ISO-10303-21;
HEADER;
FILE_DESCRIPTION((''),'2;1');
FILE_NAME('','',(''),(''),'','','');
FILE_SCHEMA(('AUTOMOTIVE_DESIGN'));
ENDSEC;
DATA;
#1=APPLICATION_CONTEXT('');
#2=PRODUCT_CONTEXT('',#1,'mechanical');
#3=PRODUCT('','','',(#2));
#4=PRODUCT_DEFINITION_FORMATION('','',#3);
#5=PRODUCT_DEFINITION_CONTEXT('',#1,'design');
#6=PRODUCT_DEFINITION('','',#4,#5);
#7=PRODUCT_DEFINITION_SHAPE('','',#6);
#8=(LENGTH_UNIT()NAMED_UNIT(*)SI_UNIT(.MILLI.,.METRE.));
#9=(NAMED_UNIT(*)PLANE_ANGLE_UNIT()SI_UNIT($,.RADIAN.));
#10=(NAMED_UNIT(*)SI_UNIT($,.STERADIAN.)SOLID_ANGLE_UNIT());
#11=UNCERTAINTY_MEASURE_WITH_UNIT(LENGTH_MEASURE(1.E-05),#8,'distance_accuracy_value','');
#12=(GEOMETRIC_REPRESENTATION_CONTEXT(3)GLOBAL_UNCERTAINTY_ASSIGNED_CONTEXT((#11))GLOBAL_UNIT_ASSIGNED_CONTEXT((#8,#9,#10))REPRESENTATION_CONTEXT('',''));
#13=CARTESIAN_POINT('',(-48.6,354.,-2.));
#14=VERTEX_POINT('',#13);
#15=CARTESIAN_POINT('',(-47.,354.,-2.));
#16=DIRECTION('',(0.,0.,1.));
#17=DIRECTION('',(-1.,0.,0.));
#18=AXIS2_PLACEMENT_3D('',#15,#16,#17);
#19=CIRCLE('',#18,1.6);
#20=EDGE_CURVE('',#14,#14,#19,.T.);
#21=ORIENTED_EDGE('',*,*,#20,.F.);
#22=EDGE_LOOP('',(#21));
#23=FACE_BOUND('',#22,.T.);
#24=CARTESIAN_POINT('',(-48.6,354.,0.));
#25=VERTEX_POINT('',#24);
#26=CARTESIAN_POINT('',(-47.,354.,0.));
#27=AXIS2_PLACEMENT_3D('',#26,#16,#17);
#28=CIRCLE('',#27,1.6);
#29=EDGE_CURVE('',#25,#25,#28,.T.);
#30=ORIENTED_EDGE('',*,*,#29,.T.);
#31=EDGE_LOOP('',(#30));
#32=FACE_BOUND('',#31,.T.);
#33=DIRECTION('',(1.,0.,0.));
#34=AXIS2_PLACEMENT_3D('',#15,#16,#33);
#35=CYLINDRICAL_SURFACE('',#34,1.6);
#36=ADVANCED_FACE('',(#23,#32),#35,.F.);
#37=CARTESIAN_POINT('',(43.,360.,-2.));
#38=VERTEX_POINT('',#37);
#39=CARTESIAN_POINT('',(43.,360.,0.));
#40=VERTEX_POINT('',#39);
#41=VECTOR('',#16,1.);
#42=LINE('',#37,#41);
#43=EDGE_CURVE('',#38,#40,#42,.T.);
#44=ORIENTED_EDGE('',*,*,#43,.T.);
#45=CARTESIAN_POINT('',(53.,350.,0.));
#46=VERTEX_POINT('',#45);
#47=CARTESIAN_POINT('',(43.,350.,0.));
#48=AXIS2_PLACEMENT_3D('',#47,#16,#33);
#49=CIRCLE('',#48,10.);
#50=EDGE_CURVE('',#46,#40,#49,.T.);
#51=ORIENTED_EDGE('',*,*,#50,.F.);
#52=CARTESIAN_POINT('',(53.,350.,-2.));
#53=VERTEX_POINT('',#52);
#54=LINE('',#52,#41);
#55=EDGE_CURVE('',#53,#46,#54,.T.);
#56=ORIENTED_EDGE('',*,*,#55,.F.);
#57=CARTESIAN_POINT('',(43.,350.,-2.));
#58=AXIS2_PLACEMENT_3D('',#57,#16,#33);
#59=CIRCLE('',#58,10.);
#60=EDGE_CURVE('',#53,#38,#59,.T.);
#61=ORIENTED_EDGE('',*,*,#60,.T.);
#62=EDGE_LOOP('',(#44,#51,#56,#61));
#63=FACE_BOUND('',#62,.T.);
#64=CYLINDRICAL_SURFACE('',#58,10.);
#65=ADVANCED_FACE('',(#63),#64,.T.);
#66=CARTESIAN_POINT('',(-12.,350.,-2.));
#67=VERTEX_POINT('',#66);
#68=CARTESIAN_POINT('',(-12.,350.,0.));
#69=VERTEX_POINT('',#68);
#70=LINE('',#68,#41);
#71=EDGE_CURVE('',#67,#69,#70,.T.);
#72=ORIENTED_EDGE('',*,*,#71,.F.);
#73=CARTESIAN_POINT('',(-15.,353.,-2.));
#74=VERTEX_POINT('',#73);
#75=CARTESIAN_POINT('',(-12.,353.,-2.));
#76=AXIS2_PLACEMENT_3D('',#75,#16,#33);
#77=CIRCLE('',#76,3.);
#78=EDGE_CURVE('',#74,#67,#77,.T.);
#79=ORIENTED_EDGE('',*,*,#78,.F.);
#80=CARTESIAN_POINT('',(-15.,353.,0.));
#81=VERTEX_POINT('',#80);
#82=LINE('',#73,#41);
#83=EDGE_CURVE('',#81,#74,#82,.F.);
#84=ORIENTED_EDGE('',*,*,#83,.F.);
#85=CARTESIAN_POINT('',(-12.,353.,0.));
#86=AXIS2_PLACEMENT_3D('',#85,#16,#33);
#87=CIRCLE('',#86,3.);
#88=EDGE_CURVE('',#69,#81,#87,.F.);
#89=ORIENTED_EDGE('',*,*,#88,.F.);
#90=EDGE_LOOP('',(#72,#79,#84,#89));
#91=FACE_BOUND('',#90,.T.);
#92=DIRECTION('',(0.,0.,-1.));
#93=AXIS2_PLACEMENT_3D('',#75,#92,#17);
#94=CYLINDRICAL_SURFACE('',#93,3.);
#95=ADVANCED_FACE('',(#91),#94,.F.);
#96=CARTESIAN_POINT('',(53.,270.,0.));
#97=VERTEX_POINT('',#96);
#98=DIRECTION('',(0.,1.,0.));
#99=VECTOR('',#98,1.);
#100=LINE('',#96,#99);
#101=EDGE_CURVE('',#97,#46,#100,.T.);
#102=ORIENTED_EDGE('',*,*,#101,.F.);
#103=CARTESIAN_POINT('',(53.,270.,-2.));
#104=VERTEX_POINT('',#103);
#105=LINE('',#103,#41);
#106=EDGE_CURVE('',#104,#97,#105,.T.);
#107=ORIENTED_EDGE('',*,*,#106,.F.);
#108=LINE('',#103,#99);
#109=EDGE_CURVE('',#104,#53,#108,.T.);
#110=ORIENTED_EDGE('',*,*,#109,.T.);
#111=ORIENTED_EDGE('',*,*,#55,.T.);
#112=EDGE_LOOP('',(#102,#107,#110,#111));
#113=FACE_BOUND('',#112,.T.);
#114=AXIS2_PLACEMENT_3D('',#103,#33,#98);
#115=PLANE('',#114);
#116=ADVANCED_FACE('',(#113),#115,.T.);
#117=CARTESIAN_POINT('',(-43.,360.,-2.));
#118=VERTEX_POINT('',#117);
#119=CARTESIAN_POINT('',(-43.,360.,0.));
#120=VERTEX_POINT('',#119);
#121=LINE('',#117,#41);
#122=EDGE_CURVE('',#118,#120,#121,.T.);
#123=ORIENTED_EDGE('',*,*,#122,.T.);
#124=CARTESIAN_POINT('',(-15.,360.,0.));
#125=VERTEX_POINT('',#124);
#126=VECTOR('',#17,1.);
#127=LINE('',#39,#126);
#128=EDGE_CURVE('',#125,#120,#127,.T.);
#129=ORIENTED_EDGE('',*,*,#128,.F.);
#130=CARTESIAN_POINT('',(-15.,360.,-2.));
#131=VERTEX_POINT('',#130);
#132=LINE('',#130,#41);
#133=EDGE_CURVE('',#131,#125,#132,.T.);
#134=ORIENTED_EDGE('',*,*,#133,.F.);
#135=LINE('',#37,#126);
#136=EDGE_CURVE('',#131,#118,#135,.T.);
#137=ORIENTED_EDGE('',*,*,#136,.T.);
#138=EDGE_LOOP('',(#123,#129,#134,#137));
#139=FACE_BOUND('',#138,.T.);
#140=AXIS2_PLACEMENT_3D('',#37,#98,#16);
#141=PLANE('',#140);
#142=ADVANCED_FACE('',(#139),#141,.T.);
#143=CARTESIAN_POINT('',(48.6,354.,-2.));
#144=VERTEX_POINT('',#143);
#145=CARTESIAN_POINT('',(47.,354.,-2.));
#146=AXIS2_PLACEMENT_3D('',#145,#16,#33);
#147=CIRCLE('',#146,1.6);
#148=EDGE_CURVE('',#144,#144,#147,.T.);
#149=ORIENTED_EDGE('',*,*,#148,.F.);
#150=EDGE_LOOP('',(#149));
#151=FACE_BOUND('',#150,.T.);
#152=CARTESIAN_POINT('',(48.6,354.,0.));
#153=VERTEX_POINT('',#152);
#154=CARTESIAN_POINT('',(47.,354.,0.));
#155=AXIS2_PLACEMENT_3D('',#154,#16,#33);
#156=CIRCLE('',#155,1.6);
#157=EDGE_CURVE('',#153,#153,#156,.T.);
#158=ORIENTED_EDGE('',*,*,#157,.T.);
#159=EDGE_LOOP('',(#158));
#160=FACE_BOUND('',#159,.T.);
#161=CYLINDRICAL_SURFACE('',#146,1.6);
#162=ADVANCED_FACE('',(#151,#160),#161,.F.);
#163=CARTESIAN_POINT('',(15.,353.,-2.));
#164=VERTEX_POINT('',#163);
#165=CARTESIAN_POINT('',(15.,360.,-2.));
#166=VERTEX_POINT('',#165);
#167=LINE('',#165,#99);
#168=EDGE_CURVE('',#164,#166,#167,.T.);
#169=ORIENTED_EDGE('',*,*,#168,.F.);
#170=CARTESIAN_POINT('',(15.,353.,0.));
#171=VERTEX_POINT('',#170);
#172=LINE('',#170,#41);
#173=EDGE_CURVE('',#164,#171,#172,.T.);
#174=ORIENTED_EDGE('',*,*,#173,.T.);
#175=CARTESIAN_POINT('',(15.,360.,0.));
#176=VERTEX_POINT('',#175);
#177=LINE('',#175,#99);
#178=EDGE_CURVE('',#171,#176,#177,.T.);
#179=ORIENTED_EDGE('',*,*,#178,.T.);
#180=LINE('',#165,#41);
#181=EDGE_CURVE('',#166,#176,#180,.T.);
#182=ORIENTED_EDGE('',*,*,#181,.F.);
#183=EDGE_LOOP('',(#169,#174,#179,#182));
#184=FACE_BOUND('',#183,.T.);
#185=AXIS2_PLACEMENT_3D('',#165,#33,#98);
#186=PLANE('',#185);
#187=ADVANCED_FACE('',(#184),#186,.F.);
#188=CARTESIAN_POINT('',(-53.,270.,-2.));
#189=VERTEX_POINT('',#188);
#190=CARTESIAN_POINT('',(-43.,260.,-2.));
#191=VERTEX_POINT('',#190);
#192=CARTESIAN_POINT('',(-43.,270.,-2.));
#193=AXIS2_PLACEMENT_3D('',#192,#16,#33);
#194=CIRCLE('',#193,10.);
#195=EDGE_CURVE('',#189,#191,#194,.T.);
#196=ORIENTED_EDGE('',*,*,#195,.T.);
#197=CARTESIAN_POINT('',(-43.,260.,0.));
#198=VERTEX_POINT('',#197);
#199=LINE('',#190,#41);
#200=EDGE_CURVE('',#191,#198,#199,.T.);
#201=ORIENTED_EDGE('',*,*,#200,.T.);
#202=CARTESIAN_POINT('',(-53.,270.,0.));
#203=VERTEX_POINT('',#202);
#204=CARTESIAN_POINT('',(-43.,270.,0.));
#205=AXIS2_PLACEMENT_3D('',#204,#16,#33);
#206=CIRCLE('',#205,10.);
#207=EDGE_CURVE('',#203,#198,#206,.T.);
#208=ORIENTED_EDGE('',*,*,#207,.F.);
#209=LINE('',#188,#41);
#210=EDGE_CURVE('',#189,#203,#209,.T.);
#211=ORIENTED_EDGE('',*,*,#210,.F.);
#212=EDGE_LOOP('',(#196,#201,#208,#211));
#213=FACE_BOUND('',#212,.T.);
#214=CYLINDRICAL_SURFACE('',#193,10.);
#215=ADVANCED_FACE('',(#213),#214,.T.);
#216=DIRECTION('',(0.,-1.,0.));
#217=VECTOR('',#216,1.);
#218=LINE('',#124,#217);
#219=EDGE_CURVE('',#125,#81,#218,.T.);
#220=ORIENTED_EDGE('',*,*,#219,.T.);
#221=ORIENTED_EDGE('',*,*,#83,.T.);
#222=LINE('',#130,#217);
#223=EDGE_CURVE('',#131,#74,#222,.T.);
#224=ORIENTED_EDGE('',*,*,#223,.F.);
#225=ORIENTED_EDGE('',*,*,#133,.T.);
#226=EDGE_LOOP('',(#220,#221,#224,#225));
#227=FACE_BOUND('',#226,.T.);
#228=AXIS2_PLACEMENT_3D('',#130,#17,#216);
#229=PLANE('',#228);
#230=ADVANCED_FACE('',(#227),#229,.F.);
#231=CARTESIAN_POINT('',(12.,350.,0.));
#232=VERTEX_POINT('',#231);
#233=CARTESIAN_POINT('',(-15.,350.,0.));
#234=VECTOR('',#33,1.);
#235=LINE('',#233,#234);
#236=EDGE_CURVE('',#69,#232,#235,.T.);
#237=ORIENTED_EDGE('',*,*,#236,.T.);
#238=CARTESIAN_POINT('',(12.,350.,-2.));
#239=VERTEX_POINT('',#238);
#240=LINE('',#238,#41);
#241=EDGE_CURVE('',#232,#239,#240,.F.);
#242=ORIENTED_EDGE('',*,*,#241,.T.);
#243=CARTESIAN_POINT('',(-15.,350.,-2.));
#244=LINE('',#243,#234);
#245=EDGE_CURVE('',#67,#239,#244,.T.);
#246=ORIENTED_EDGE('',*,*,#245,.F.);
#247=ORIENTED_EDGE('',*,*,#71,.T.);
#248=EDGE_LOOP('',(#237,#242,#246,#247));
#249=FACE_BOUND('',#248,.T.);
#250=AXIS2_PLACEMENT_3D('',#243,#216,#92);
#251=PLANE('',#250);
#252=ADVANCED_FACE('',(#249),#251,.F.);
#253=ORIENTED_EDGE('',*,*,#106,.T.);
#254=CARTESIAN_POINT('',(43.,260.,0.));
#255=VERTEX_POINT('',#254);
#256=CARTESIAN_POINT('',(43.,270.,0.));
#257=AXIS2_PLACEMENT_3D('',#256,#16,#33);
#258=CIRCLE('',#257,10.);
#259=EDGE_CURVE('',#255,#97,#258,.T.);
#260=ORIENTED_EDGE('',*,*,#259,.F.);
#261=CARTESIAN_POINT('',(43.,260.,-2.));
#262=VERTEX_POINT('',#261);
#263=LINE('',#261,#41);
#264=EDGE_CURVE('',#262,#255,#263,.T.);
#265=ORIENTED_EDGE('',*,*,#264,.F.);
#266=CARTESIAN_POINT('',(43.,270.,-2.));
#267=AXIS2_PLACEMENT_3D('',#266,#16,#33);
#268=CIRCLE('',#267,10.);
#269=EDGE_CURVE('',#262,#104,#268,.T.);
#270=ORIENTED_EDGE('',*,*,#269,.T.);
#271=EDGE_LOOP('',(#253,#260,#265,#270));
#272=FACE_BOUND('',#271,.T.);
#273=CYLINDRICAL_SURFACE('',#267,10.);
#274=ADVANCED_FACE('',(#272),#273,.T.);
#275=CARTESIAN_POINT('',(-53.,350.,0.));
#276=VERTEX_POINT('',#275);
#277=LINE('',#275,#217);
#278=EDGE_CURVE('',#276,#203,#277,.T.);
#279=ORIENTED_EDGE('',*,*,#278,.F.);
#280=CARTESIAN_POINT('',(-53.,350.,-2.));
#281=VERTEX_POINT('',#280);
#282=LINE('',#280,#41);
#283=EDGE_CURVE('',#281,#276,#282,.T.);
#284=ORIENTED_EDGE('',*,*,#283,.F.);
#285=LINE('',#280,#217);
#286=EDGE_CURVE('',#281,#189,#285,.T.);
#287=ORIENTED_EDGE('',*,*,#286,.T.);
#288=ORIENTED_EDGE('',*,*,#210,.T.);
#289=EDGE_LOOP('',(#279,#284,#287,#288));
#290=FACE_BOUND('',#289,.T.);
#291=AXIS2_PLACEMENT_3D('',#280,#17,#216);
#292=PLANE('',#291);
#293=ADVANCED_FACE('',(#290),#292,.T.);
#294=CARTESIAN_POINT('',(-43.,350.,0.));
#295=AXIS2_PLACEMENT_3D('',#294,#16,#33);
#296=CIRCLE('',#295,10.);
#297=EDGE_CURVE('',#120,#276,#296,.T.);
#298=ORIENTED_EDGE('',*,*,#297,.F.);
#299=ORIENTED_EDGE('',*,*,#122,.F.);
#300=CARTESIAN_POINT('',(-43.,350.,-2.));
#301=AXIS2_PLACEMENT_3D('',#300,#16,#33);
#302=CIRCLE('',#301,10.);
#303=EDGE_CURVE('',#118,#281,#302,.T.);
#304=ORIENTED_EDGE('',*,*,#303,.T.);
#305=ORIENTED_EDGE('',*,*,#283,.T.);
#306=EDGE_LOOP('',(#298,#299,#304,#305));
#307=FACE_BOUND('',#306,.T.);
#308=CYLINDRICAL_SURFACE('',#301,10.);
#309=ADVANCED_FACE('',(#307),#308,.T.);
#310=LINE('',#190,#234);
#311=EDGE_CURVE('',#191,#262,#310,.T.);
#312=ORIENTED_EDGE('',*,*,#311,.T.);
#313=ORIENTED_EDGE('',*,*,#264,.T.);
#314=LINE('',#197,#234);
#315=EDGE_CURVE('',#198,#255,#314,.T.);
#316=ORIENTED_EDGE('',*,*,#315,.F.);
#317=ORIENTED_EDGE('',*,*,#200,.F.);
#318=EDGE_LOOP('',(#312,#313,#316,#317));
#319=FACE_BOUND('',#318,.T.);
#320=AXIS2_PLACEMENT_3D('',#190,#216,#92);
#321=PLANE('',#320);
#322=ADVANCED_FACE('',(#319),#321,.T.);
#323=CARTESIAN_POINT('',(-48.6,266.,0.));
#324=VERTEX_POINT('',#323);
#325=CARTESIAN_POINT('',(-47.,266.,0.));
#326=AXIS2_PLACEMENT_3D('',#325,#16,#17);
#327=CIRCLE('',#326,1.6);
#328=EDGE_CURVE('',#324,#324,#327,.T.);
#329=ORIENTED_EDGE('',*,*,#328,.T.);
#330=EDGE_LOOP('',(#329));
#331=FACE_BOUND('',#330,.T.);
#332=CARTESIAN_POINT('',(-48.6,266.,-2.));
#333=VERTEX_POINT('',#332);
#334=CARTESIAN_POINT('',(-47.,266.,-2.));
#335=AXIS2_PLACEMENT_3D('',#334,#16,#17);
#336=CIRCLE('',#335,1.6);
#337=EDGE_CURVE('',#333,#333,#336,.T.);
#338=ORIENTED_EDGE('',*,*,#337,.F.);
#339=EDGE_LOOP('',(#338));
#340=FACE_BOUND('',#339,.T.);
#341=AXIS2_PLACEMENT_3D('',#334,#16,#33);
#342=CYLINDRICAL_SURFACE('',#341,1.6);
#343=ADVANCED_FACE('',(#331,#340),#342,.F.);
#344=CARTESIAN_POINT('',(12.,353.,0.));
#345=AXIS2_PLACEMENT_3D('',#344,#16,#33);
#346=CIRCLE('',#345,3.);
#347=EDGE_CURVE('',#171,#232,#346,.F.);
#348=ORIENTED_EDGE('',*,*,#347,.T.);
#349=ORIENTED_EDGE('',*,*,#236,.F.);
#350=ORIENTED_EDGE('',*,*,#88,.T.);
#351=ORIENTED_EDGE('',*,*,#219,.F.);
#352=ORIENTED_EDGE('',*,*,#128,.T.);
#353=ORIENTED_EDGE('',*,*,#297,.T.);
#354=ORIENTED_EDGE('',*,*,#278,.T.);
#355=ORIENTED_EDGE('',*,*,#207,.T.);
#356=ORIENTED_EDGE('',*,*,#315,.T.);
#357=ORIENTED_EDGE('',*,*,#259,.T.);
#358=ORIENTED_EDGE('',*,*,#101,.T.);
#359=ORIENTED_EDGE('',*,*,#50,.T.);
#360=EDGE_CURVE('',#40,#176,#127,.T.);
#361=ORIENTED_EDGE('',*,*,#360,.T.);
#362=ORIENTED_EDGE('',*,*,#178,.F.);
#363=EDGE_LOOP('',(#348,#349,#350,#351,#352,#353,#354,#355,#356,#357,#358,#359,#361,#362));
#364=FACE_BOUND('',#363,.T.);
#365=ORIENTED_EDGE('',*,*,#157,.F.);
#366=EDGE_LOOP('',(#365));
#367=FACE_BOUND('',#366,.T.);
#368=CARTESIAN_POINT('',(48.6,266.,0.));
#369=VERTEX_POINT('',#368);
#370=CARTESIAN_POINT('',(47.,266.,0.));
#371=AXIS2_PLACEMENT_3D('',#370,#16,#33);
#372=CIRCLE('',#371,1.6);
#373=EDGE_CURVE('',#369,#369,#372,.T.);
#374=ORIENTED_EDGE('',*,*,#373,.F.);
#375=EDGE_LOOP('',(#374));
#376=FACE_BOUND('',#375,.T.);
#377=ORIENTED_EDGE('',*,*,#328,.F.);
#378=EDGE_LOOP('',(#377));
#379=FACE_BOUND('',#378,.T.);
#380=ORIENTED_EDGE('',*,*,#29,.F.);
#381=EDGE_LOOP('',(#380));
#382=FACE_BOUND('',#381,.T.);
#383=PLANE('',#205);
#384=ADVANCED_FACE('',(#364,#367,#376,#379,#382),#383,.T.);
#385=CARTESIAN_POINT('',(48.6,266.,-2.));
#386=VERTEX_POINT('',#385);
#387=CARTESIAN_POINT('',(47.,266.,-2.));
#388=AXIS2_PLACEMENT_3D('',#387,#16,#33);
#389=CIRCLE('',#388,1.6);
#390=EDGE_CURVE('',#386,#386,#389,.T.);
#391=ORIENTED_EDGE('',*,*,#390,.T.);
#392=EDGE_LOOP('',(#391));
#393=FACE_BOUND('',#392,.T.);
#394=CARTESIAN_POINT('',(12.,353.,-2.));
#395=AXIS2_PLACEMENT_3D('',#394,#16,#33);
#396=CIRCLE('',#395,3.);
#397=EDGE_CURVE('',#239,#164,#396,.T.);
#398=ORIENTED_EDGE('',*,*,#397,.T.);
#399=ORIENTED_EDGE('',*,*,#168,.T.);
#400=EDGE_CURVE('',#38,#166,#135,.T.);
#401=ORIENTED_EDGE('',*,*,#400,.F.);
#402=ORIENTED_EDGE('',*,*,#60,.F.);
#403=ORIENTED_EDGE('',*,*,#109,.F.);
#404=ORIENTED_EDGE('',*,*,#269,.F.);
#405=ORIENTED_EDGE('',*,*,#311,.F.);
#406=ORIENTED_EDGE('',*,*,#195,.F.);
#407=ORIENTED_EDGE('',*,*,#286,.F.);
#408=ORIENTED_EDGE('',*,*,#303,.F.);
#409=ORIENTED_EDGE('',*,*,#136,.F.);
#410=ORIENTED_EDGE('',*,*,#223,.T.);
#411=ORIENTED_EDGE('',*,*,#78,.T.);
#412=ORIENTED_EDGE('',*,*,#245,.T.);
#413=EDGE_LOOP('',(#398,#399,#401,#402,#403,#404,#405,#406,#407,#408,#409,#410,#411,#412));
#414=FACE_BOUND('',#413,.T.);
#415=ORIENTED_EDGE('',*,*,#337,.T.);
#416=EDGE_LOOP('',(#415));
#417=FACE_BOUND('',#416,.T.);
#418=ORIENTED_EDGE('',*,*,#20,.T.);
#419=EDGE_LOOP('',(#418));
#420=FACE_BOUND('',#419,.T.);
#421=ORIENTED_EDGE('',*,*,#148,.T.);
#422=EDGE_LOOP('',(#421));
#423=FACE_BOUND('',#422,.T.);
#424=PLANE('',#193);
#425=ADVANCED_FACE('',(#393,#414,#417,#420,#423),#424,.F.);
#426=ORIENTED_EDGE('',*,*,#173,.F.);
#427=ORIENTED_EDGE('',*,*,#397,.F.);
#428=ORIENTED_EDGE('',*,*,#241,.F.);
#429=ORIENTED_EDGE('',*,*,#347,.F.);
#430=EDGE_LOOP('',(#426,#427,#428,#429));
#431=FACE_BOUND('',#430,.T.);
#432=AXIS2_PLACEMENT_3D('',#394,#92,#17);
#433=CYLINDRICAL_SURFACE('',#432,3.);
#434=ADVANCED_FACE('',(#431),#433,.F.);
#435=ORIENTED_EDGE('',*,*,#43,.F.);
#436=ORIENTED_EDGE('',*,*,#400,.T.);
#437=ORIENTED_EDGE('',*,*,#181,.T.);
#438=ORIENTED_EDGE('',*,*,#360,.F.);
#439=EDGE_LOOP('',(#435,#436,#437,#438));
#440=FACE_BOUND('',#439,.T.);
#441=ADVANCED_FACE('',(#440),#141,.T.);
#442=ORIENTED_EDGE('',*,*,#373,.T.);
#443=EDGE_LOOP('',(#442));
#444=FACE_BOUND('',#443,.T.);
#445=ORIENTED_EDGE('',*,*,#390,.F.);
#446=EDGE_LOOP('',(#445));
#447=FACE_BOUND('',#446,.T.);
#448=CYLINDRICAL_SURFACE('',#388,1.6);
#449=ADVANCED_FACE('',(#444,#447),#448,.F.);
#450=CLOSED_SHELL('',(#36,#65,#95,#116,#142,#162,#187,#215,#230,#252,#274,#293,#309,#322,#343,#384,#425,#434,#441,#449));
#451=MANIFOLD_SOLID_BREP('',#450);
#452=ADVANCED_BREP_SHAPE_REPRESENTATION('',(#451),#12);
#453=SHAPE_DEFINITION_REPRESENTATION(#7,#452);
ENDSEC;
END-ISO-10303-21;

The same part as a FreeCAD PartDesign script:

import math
import FreeCAD as App
import Part
import Sketcher

V = App.Vector


def edges_at(feature, points):
    """Names of the edges that pass closest to the given points."""
    edges = feature.Shape.Edges
    near = lambda p: min(range(len(edges)), key=lambda i: edges[i].distToShape(Part.Vertex(*p))[0])
    return sorted({f"Edge{near(p) + 1}" for p in points})


def add_polygon(sketch, points):
    """Adds a closed chain of lines whose ends are joined by coincident constraints."""
    first, n = sketch.GeometryCount, len(points)
    for a, b in zip(points, points[1:] + points[:1]):
        sketch.addGeometry(Part.LineSegment(App.Vector(*a, 0), App.Vector(*b, 0)), False)
    for i in range(n):
        sketch.addConstraint(Sketcher.Constraint("Coincident", first + i, 2, first + (i + 1) % n, 1))

doc = App.newDocument("Part")
body = doc.addObject("PartDesign::Body", "Body")

sketch1 = body.newObject("Sketcher::SketchObject", "Sketch")
sketch1.AttachmentSupport = (doc.getObject("XY_Plane"), [""])
sketch1.MapMode = "FlatFace"
sketch1.addGeometry([
    Part.LineSegment(V(-43, 260, 0), V(43, 260, 0)),
    Part.ArcOfCircle(Part.Circle(V(43, 270, 0), V(0, 0, 1), 10), math.radians(-90), math.radians(0)),
    Part.LineSegment(V(53, 270, 0), V(53, 350, 0)),
    Part.ArcOfCircle(Part.Circle(V(43, 350, 0), V(0, 0, 1), 10), math.radians(0), math.radians(90)),
    Part.LineSegment(V(43, 360, 0), V(-43, 360, 0)),
    Part.ArcOfCircle(Part.Circle(V(-43, 350, 0), V(0, 0, 1), 10), math.radians(90), math.radians(180)),
    Part.LineSegment(V(-53, 350, 0), V(-53, 270, 0)),
    Part.ArcOfCircle(Part.Circle(V(-43, 270, 0), V(0, 0, 1), 10), math.radians(180), math.radians(270)),
], False)
sketch1.addConstraint([
    Sketcher.Constraint("Tangent", 0, 2, 1, 1),
    Sketcher.Constraint("Tangent", 1, 2, 2, 1),
    Sketcher.Constraint("Tangent", 2, 2, 3, 1),
    Sketcher.Constraint("Tangent", 3, 2, 4, 1),
    Sketcher.Constraint("Tangent", 4, 2, 5, 1),
    Sketcher.Constraint("Tangent", 5, 2, 6, 1),
    Sketcher.Constraint("Tangent", 6, 2, 7, 1),
    Sketcher.Constraint("Tangent", 7, 2, 0, 1),
    Sketcher.Constraint("Horizontal", 0),
    Sketcher.Constraint("Vertical", 2),
    Sketcher.Constraint("Horizontal", 4),
    Sketcher.Constraint("Vertical", 6),
    Sketcher.Constraint("Equal", 1, 3),
    Sketcher.Constraint("Equal", 3, 5),
    Sketcher.Constraint("Equal", 5, 7),
    Sketcher.Constraint("Radius", 1, 10.0),
    Sketcher.Constraint("DistanceX", 0, 1, 0, 2, 86.0),
    Sketcher.Constraint("DistanceY", 2, 1, 2, 2, 80.0),
    Sketcher.Constraint("DistanceX", -1, 1, 1, 3, 43.0),
    Sketcher.Constraint("DistanceY", -1, 1, 1, 3, 270.0),
])
pad1 = body.newObject("PartDesign::Pad", "Pad")
pad1.Profile = sketch1
pad1.Length = 2
pad1.Reversed = True

sketch2 = body.newObject("Sketcher::SketchObject", "Sketch001")
sketch2.AttachmentSupport = (doc.getObject("XY_Plane"), [""])
sketch2.MapMode = "FlatFace"
add_polygon(sketch2, [(-15, 360), (-15, 350), (15, 350), (15, 360)])
sketch2.addConstraint([
    Sketcher.Constraint("Vertical", 0),
    Sketcher.Constraint("Horizontal", 1),
    Sketcher.Constraint("Vertical", 2),
    Sketcher.Constraint("Horizontal", 3),
    Sketcher.Constraint("DistanceX", 1, 1, 1, 2, 30.0),
    Sketcher.Constraint("DistanceY", 0, 2, 0, 1, 10.0),
    Sketcher.Constraint("DistanceX", 0, 2, -1, 1, 15.0),
    Sketcher.Constraint("DistanceY", -1, 1, 0, 2, 350.0),
])
pocket1 = body.newObject("PartDesign::Pocket", "Pocket")
pocket1.Profile = sketch2
pocket1.Type = "ThroughAll"
doc.recompute()

fillet = body.newObject("PartDesign::Fillet", "Fillet")
fillet.Base = (pocket1, edges_at(pocket1, [(-15, 350, -1), (15, 350, -1)]))
fillet.Radius = 3

sketch3 = body.newObject("Sketcher::SketchObject", "Sketch002")
sketch3.AttachmentSupport = (doc.getObject("XY_Plane"), [""])
sketch3.MapMode = "FlatFace"
sketch3.addGeometry([
    Part.Circle(V(47, 354, 0), V(0, 0, 1), 1.6),
    Part.Circle(V(47, 266, 0), V(0, 0, 1), 1.6),
    Part.Circle(V(-47, 266, 0), V(0, 0, 1), 1.6),
    Part.Circle(V(-47, 354, 0), V(0, 0, 1), 1.6),
], False)
sketch3.addConstraint([
    Sketcher.Constraint("Equal", 0, 1),
    Sketcher.Constraint("Equal", 1, 2),
    Sketcher.Constraint("Equal", 2, 3),
    Sketcher.Constraint("Symmetric", 1, 3, 2, 3, -2),
    Sketcher.Constraint("Symmetric", 0, 3, 3, 3, -2),
    Sketcher.Constraint("Vertical", 0, 3, 1, 3),
    Sketcher.Constraint("Diameter", 0, 3.2),
    Sketcher.Constraint("DistanceX", -1, 1, 0, 3, 47.0),
    Sketcher.Constraint("DistanceY", -1, 1, 0, 3, 354.0),
    Sketcher.Constraint("DistanceY", -1, 1, 1, 3, 266.0),
])
pocket2 = body.newObject("PartDesign::Pocket", "Pocket001")
pocket2.Profile = sketch3
pocket2.Type = "ThroughAll"

doc.recompute()
